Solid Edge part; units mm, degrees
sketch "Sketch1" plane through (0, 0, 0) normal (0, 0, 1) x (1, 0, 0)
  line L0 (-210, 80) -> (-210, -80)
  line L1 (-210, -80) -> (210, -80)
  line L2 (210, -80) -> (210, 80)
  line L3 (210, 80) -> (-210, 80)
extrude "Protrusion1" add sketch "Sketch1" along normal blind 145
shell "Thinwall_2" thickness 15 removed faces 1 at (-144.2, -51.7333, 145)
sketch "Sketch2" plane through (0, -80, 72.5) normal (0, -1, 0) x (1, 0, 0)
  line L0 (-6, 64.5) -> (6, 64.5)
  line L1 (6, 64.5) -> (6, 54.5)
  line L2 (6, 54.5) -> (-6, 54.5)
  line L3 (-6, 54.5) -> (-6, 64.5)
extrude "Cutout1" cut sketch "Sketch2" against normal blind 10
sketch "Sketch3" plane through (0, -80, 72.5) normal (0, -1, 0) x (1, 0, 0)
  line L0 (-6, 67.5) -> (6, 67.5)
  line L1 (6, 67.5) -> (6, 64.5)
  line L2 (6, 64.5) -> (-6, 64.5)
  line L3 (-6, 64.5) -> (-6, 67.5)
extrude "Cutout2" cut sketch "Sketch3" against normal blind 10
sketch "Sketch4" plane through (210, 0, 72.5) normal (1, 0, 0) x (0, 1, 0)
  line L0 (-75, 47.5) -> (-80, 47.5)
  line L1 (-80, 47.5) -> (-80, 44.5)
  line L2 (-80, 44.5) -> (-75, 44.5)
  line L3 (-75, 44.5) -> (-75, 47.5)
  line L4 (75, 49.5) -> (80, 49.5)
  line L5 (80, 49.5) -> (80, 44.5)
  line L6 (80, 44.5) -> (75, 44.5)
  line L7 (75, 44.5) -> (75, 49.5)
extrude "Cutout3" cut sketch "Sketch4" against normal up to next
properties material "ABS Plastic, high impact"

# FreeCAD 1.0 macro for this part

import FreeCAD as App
import Part
import Sketcher


def faces_at(feature, points):
    """Names of the faces that lie closest to the given points."""
    faces = feature.Shape.Faces
    near = lambda p: min(range(len(faces)), key=lambda i: faces[i].distToShape(Part.Vertex(*p))[0])
    return sorted({f"Face{near(p) + 1}" for p in points})

doc = App.newDocument("Part")
params = doc.addObject("Spreadsheet::Sheet", "Params")
for row, (alias, value) in enumerate([
    ("sketch1_width", "420 mm"),
    ("sketch1_height", "160 mm"),
    ("pad1_length", "145 mm"),
    ("thickness_wall", "15 mm"),
    ("sketch2_width", "12 mm"),
    ("sketch2_height", "10 mm"),
    ("pocket1_length", "10 mm"),
    ("sketch3_width", "12 mm"),
    ("sketch3_height", "3 mm"),
    ("pocket2_length", "10 mm"),
    ("sketch4_width", "5 mm"),
    ("sketch4_height", "3 mm"),
    ("pocket3_length", "420 mm"),
], start=1):
    params.set(f"A{row}", alias)
    params.set(f"B{row}", "=" + value)
    params.setAlias(f"B{row}", alias)

body = doc.addObject("PartDesign::Body", "Body")

# Sketch on XY plane
sketch1 = doc.addObject("Sketcher::SketchObject", "Sketch")
body.addObject(sketch1)
sketch1.AttachmentSupport = (doc.XY_Plane, [""])
sketch1.MapMode = "FlatFace"
sketch1.addGeometry(Part.LineSegment(App.Vector(210, 80, 0), App.Vector(-210, 80, 0)), False)
sketch1.addGeometry(Part.LineSegment(App.Vector(-210, 80, 0), App.Vector(-210, -80, 0)), False)
sketch1.addGeometry(Part.LineSegment(App.Vector(-210, -80, 0), App.Vector(210, -80, 0)), False)
sketch1.addGeometry(Part.LineSegment(App.Vector(210, -80, 0), App.Vector(210, 80, 0)), False)
sketch1.addConstraint(Sketcher.Constraint("Coincident", 0, 2, 1, 1))
sketch1.addConstraint(Sketcher.Constraint("Coincident", 1, 2, 2, 1))
sketch1.addConstraint(Sketcher.Constraint("Coincident", 2, 2, 3, 1))
sketch1.addConstraint(Sketcher.Constraint("Coincident", 3, 2, 0, 1))
sketch1.addConstraint(Sketcher.Constraint("Horizontal", 0))
sketch1.addConstraint(Sketcher.Constraint("Vertical", 1))
sketch1.addConstraint(Sketcher.Constraint("Horizontal", 2))
sketch1.addConstraint(Sketcher.Constraint("Vertical", 3))
sketch1.addConstraint(Sketcher.Constraint("Symmetric", 0, 2, 2, 2, -1, 1))
sketch1.addConstraint(Sketcher.Constraint("DistanceX", 0, 2, 0, 1, 420.0))
sketch1.addConstraint(Sketcher.Constraint("DistanceY", 1, 2, 1, 1, 160.0))
sketch1.setExpression("Constraints[9]", "Params.sketch1_width")
sketch1.setExpression("Constraints[10]", "Params.sketch1_height")
pad1 = doc.addObject("PartDesign::Pad", "Pad")
body.addObject(pad1)
pad1.Profile = sketch1
pad1.setExpression("Length", "Params.pad1_length")
doc.recompute()

thickness = doc.addObject("PartDesign::Thickness", "Thickness")
body.addObject(thickness)
thickness.Base = (pad1, faces_at(pad1, [(-144.2, -51.733, 145)]))
thickness.setExpression("Value", "Params.thickness_wall")
thickness.Reversed = True
thickness.Join = "Intersection"

# Sketch on XZ plane
sketch2 = doc.addObject("Sketcher::SketchObject", "Sketch001")
body.addObject(sketch2)
sketch2.AttachmentSupport = (doc.XZ_Plane, [""])
sketch2.MapMode = "FlatFace"
sketch2.AttachmentOffset = App.Placement(App.Vector(0, 0, 80), App.Rotation())
sketch2.addGeometry(Part.LineSegment(App.Vector(6, 137, 0), App.Vector(-6, 137, 0)), False)
sketch2.addGeometry(Part.LineSegment(App.Vector(-6, 137, 0), App.Vector(-6, 127, 0)), False)
sketch2.addGeometry(Part.LineSegment(App.Vector(-6, 127, 0), App.Vector(6, 127, 0)), False)
sketch2.addGeometry(Part.LineSegment(App.Vector(6, 127, 0), App.Vector(6, 137, 0)), False)
sketch2.addConstraint(Sketcher.Constraint("Coincident", 0, 2, 1, 1))
sketch2.addConstraint(Sketcher.Constraint("Coincident", 1, 2, 2, 1))
sketch2.addConstraint(Sketcher.Constraint("Coincident", 2, 2, 3, 1))
sketch2.addConstraint(Sketcher.Constraint("Coincident", 3, 2, 0, 1))
sketch2.addConstraint(Sketcher.Constraint("Horizontal", 0))
sketch2.addConstraint(Sketcher.Constraint("Vertical", 1))
sketch2.addConstraint(Sketcher.Constraint("Horizontal", 2))
sketch2.addConstraint(Sketcher.Constraint("Vertical", 3))
sketch2.addConstraint(Sketcher.Constraint("DistanceX", 0, 2, 0, 1, 12.0))
sketch2.addConstraint(Sketcher.Constraint("DistanceY", 1, 2, 1, 1, 10.0))
sketch2.addConstraint(Sketcher.Constraint("DistanceX", 0, 2, -1, 1, 6.0))
sketch2.addConstraint(Sketcher.Constraint("DistanceY", -1, 1, 0, 2, 137.0))
sketch2.setExpression("Constraints[8]", "Params.sketch2_width")
sketch2.setExpression("Constraints[9]", "Params.sketch2_height")
pocket1 = doc.addObject("PartDesign::Pocket", "Pocket")
body.addObject(pocket1)
pocket1.Profile = sketch2
pocket1.setExpression("Length", "Params.pocket1_length")

# Sketch on XZ plane
sketch3 = doc.addObject("Sketcher::SketchObject", "Sketch002")
body.addObject(sketch3)
sketch3.AttachmentSupport = (doc.XZ_Plane, [""])
sketch3.MapMode = "FlatFace"
sketch3.AttachmentOffset = App.Placement(App.Vector(0, 0, 80), App.Rotation())
sketch3.addGeometry(Part.LineSegment(App.Vector(6, 140, 0), App.Vector(-6, 140, 0)), False)
sketch3.addGeometry(Part.LineSegment(App.Vector(-6, 140, 0), App.Vector(-6, 137, 0)), False)
sketch3.addGeometry(Part.LineSegment(App.Vector(-6, 137, 0), App.Vector(6, 137, 0)), False)
sketch3.addGeometry(Part.LineSegment(App.Vector(6, 137, 0), App.Vector(6, 140, 0)), False)
sketch3.addConstraint(Sketcher.Constraint("Coincident", 0, 2, 1, 1))
sketch3.addConstraint(Sketcher.Constraint("Coincident", 1, 2, 2, 1))
sketch3.addConstraint(Sketcher.Constraint("Coincident", 2, 2, 3, 1))
sketch3.addConstraint(Sketcher.Constraint("Coincident", 3, 2, 0, 1))
sketch3.addConstraint(Sketcher.Constraint("Horizontal", 0))
sketch3.addConstraint(Sketcher.Constraint("Vertical", 1))
sketch3.addConstraint(Sketcher.Constraint("Horizontal", 2))
sketch3.addConstraint(Sketcher.Constraint("Vertical", 3))
sketch3.addConstraint(Sketcher.Constraint("DistanceX", 0, 2, 0, 1, 12.0))
sketch3.addConstraint(Sketcher.Constraint("DistanceY", 1, 2, 1, 1, 3.0))
sketch3.addConstraint(Sketcher.Constraint("DistanceX", 0, 2, -1, 1, 6.0))
sketch3.addConstraint(Sketcher.Constraint("DistanceY", -1, 1, 0, 2, 140.0))
sketch3.setExpression("Constraints[8]", "Params.sketch3_width")
sketch3.setExpression("Constraints[9]", "Params.sketch3_height")
pocket2 = doc.addObject("PartDesign::Pocket", "Pocket001")
body.addObject(pocket2)
pocket2.Profile = sketch3
pocket2.setExpression("Length", "Params.pocket2_length")

# Sketch on YZ plane
sketch4 = doc.addObject("Sketcher::SketchObject", "Sketch003")
body.addObject(sketch4)
sketch4.AttachmentSupport = (doc.YZ_Plane, [""])
sketch4.MapMode = "FlatFace"
sketch4.AttachmentOffset = App.Placement(App.Vector(0, 0, 210), App.Rotation())
sketch4.addGeometry(Part.LineSegment(App.Vector(-75, 117, 0), App.Vector(-75, 120, 0)), False)
sketch4.addGeometry(Part.LineSegment(App.Vector(-75, 120, 0), App.Vector(-80, 120, 0)), False)
sketch4.addGeometry(Part.LineSegment(App.Vector(-80, 120, 0), App.Vector(-80, 117, 0)), False)
sketch4.addGeometry(Part.LineSegment(App.Vector(-80, 117, 0), App.Vector(-75, 117, 0)), False)
sketch4.addGeometry(Part.LineSegment(App.Vector(80, 122, 0), App.Vector(75, 122, 0)), False)
sketch4.addGeometry(Part.LineSegment(App.Vector(75, 122, 0), App.Vector(75, 117, 0)), False)
sketch4.addGeometry(Part.LineSegment(App.Vector(75, 117, 0), App.Vector(80, 117, 0)), False)
sketch4.addGeometry(Part.LineSegment(App.Vector(80, 117, 0), App.Vector(80, 122, 0)), False)
sketch4.addConstraint(Sketcher.Constraint("Coincident", 0, 2, 1, 1))
sketch4.addConstraint(Sketcher.Constraint("Coincident", 1, 2, 2, 1))
sketch4.addConstraint(Sketcher.Constraint("Coincident", 2, 2, 3, 1))
sketch4.addConstraint(Sketcher.Constraint("Coincident", 3, 2, 0, 1))
sketch4.addConstraint(Sketcher.Constraint("Coincident", 4, 2, 5, 1))
sketch4.addConstraint(Sketcher.Constraint("Coincident", 5, 2, 6, 1))
sketch4.addConstraint(Sketcher.Constraint("Coincident", 6, 2, 7, 1))
sketch4.addConstraint(Sketcher.Constraint("Coincident", 7, 2, 4, 1))
sketch4.addConstraint(Sketcher.Constraint("Vertical", 0))
sketch4.addConstraint(Sketcher.Constraint("Horizontal", 1))
sketch4.addConstraint(Sketcher.Constraint("Vertical", 2))
sketch4.addConstraint(Sketcher.Constraint("Horizontal", 3))
sketch4.addConstraint(Sketcher.Constraint("Horizontal", 4))
sketch4.addConstraint(Sketcher.Constraint("Vertical", 5))
sketch4.addConstraint(Sketcher.Constraint("Horizontal", 6))
sketch4.addConstraint(Sketcher.Constraint("Vertical", 7))
sketch4.addConstraint(Sketcher.Constraint("Symmetric", 3, 2, 5, 2, -2))
sketch4.addConstraint(Sketcher.Constraint("Equal", 3, 4))
sketch4.addConstraint(Sketcher.Constraint("Equal", 6, 5))
sketch4.addConstraint(Sketcher.Constraint("DistanceX", 1, 2, 1, 1, 5.0))
sketch4.addConstraint(Sketcher.Constraint("DistanceY", 0, 1, 0, 2, 3.0))
sketch4.addConstraint(Sketcher.Constraint("DistanceX", 0, 2, -1, 1, 75.0))
sketch4.addConstraint(Sketcher.Constraint("DistanceY", -1, 1, 0, 2, 120.0))
sketch4.setExpression("Constraints[19]", "Params.sketch4_width")
sketch4.setExpression("Constraints[20]", "Params.sketch4_height")
pocket3 = doc.addObject("PartDesign::Pocket", "Pocket002")
body.addObject(pocket3)
pocket3.Profile = sketch4
pocket3.setExpression("Length", "Params.pocket3_length")

doc.recompute()
